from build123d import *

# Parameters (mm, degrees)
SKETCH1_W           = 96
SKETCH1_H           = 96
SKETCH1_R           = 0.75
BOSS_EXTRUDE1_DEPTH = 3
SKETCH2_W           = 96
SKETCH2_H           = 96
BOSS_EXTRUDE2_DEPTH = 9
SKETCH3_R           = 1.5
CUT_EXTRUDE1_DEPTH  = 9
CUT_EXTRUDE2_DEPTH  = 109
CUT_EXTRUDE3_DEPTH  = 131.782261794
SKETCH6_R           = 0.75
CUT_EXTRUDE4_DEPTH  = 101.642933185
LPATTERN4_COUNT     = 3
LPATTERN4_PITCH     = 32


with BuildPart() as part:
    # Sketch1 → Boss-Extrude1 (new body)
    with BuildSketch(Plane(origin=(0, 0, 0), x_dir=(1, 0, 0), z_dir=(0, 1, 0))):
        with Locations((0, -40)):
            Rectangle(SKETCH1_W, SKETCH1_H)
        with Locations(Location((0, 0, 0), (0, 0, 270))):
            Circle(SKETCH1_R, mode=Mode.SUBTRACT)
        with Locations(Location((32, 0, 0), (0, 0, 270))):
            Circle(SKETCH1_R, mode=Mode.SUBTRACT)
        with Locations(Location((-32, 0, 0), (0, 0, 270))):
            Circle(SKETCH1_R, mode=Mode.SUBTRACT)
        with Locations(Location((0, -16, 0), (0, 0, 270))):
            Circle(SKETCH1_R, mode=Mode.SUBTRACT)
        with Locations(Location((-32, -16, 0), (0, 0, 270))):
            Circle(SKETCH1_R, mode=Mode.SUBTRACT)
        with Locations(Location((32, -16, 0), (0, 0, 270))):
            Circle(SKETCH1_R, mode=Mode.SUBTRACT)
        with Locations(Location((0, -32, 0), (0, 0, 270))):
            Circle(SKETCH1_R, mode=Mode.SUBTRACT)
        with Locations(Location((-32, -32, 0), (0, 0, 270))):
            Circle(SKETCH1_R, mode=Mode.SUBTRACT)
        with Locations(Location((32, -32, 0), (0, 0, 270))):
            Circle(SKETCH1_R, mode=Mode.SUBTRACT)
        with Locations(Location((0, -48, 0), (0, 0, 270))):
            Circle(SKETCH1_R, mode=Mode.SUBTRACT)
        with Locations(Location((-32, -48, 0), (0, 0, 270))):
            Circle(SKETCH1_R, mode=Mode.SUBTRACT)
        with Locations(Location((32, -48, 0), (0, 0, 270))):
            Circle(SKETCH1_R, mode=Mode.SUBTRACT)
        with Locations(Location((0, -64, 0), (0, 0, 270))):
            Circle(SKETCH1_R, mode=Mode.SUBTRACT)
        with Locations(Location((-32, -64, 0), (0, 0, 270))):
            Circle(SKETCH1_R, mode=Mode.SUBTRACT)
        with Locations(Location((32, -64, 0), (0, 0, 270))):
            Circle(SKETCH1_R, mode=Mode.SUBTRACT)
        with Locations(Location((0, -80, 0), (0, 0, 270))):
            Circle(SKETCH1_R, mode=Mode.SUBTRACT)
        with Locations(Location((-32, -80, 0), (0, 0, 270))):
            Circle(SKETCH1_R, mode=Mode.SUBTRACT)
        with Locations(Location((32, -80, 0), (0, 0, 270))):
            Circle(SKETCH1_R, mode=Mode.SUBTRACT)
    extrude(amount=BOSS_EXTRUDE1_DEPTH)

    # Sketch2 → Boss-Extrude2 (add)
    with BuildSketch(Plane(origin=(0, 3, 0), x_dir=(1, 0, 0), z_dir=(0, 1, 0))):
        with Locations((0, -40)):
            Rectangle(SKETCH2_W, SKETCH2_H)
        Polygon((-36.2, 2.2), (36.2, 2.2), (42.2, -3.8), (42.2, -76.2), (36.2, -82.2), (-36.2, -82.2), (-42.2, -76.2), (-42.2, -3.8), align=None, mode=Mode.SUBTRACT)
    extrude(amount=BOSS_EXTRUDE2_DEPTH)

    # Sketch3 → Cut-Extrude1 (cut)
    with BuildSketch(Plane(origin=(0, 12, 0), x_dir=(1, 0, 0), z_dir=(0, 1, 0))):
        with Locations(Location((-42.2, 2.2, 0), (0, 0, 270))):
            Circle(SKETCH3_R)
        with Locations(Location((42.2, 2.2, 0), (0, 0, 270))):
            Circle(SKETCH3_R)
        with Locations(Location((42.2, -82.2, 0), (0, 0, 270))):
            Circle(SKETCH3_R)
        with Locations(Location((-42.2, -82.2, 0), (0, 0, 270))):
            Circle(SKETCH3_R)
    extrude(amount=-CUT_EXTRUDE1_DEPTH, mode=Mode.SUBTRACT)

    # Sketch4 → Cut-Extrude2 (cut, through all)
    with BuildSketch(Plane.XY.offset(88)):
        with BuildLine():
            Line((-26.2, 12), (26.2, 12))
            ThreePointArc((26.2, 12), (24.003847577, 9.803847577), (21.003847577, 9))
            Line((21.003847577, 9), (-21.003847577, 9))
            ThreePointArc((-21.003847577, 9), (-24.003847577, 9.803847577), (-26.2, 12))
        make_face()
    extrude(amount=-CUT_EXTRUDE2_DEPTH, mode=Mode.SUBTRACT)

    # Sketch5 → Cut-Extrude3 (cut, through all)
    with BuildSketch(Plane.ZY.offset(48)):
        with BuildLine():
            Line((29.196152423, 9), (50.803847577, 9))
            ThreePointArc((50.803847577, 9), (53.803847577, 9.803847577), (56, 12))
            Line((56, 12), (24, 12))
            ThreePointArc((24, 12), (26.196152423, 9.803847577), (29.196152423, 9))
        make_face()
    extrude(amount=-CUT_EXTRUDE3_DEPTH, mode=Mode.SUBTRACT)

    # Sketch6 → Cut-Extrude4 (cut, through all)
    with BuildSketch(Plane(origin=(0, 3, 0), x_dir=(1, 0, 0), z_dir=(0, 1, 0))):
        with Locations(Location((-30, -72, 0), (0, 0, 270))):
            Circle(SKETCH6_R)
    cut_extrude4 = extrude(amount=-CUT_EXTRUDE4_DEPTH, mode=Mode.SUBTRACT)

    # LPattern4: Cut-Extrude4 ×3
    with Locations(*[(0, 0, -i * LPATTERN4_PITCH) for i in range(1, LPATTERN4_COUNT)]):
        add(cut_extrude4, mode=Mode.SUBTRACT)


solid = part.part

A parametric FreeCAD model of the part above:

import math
import FreeCAD as App
import Part
import Sketcher

V = App.Vector

doc = App.newDocument("Part")
body = doc.addObject("PartDesign::Body", "Body")

sketch1 = doc.addObject("Sketcher::SketchObject", "Sketch")
body.addObject(sketch1)
sketch1.AttachmentSupport = (doc.XZ_Plane, [""])
sketch1.MapMode = "FlatFace"
sketch1.addGeometry([
    Part.LineSegment(V(-48, -8, 0), V(-48, 88, 0)),
    Part.LineSegment(V(-48, 88, 0), V(48, 88, 0)),
    Part.LineSegment(V(48, 88, 0), V(48, -8, 0)),
    Part.LineSegment(V(48, -8, 0), V(-48, -8, 0)),
    Part.Circle(V(-32, 80, 0), V(0, 0, 1), 0.8),
    Part.Circle(V(-32, 64, 0), V(0, 0, 1), 0.8),
    Part.Circle(V(-32, 48, 0), V(0, 0, 1), 0.8),
    Part.Circle(V(0, 80, 0), V(0, 0, 1), 0.8),
    Part.Circle(V(0, 64, 0), V(0, 0, 1), 0.8),
    Part.Circle(V(32, 80, 0), V(0, 0, 1), 0.8),
    Part.Circle(V(32, 64, 0), V(0, 0, 1), 0.8),
    Part.Circle(V(0, 48, 0), V(0, 0, 1), 0.8),
    Part.Circle(V(32, 48, 0), V(0, 0, 1), 0.8),
    Part.Circle(V(-32, 32, 0), V(0, 0, 1), 0.8),
    Part.Circle(V(-32, 16, 0), V(0, 0, 1), 0.8),
    Part.Circle(V(-32, 0, 0), V(0, 0, 1), 0.8),
    Part.Circle(V(0, 32, 0), V(0, 0, 1), 0.8),
    Part.Circle(V(32, 32, 0), V(0, 0, 1), 0.8),
    Part.Circle(V(0, 16, 0), V(0, 0, 1), 0.8),
    Part.Circle(V(0, 0, 0), V(0, 0, 1), 0.8),
    Part.Circle(V(32, 16, 0), V(0, 0, 1), 0.8),
    Part.Circle(V(32, 0, 0), V(0, 0, 1), 0.8),
], False)
sketch1.addConstraint([
    Sketcher.Constraint("Coincident", 0, 2, 1, 1),
    Sketcher.Constraint("Coincident", 1, 2, 2, 1),
    Sketcher.Constraint("Coincident", 2, 2, 3, 1),
    Sketcher.Constraint("Coincident", 3, 2, 0, 1),
    Sketcher.Constraint("Vertical", 0),
    Sketcher.Constraint("Horizontal", 1),
    Sketcher.Constraint("Vertical", 2),
    Sketcher.Constraint("Horizontal", 3),
    Sketcher.Constraint("Coincident", 19, 3, -1, 1),
    Sketcher.Constraint("Equal", 4, 5),
    Sketcher.Constraint("Equal", 5, 6),
    Sketcher.Constraint("Equal", 6, 7),
    Sketcher.Constraint("Equal", 7, 8),
    Sketcher.Constraint("Equal", 8, 9),
    Sketcher.Constraint("Equal", 9, 10),
    Sketcher.Constraint("Equal", 10, 11),
    Sketcher.Constraint("Equal", 11, 12),
    Sketcher.Constraint("Equal", 12, 13),
    Sketcher.Constraint("Equal", 13, 14),
    Sketcher.Constraint("Equal", 14, 15),
    Sketcher.Constraint("Equal", 15, 16),
    Sketcher.Constraint("Equal", 16, 17),
    Sketcher.Constraint("Equal", 17, 18),
    Sketcher.Constraint("Equal", 18, 19),
    Sketcher.Constraint("Equal", 19, 20),
    Sketcher.Constraint("Equal", 20, 21),
    Sketcher.Constraint("Symmetric", 15, 3, 21, 3, -1, 1),
    Sketcher.Constraint("Symmetric", 4, 3, 9, 3, -2),
    Sketcher.Constraint("Symmetric", 5, 3, 10, 3, -2),
    Sketcher.Constraint("Symmetric", 6, 3, 12, 3, -2),
    Sketcher.Constraint("Symmetric", 13, 3, 17, 3, -2),
    Sketcher.Constraint("Symmetric", 14, 3, 20, 3, -2),
    Sketcher.Constraint("PointOnObject", 7, 3, -2),
    Sketcher.Constraint("PointOnObject", 8, 3, -2),
    Sketcher.Constraint("PointOnObject", 11, 3, -2),
    Sketcher.Constraint("PointOnObject", 15, 3, -1),
    Sketcher.Constraint("PointOnObject", 16, 3, -2),
    Sketcher.Constraint("PointOnObject", 18, 3, -2),
    Sketcher.Constraint("Horizontal", 4, 3, 7, 3),
    Sketcher.Constraint("Horizontal", 5, 3, 8, 3),
    Sketcher.Constraint("Horizontal", 6, 3, 11, 3),
    Sketcher.Constraint("Horizontal", 13, 3, 16, 3),
    Sketcher.Constraint("Horizontal", 14, 3, 18, 3),
    Sketcher.Constraint("Vertical", 4, 3, 5, 3),
    Sketcher.Constraint("Vertical", 5, 3, 6, 3),
    Sketcher.Constraint("Vertical", 6, 3, 13, 3),
    Sketcher.Constraint("Vertical", 13, 3, 14, 3),
    Sketcher.Constraint("Vertical", 14, 3, 15, 3),
    Sketcher.Constraint("Equal", 3, 0),
    Sketcher.Constraint("Diameter", 4, 1.5),
    Sketcher.Constraint("DistanceX", 1, 1, 1, 2, 96.0),
    Sketcher.Constraint("DistanceX", 4, 3, -1, 1, 32.0),
    Sketcher.Constraint("DistanceY", -1, 1, 4, 3, 80.0),
    Sketcher.Constraint("DistanceY", -1, 1, 5, 3, 64.0),
    Sketcher.Constraint("DistanceY", -1, 1, 6, 3, 48.0),
    Sketcher.Constraint("DistanceY", -1, 1, 13, 3, 32.0),
    Sketcher.Constraint("DistanceY", -1, 1, 14, 3, 16.0),
    Sketcher.Constraint("DistanceX", 0, 2, -1, 1, 48.0),
    Sketcher.Constraint("DistanceY", -1, 1, 0, 2, 88.0),
])
pad1 = doc.addObject("PartDesign::Pad", "Pad")
body.addObject(pad1)
pad1.Profile = sketch1
pad1.Length = 3
pad1.Reversed = True

sketch2 = doc.addObject("Sketcher::SketchObject", "Sketch001")
body.addObject(sketch2)
sketch2.AttachmentSupport = (doc.XZ_Plane, [""])
sketch2.MapMode = "FlatFace"
sketch2.AttachmentOffset = App.Placement(V(0, 0, -3), App.Rotation())
sketch2.addGeometry([
    Part.LineSegment(V(-48, -8, 0), V(-48, 88, 0)),
    Part.LineSegment(V(-48, 88, 0), V(48, 88, 0)),
    Part.LineSegment(V(48, 88, 0), V(48, -8, 0)),
    Part.LineSegment(V(48, -8, 0), V(-48, -8, 0)),
    Part.LineSegment(V(-42, 4, 0), V(-36, -2, 0)),
    Part.LineSegment(V(-36, -2, 0), V(36, -2, 0)),
    Part.LineSegment(V(36, -2, 0), V(42, 4, 0)),
    Part.LineSegment(V(42, 4, 0), V(42, 76, 0)),
    Part.LineSegment(V(42, 76, 0), V(36, 82, 0)),
    Part.LineSegment(V(36, 82, 0), V(-36, 82, 0)),
    Part.LineSegment(V(-36, 82, 0), V(-42, 76, 0)),
    Part.LineSegment(V(-42, 76, 0), V(-42, 4, 0)),
], False)
sketch2.addConstraint([
    Sketcher.Constraint("Coincident", 0, 2, 1, 1),
    Sketcher.Constraint("Coincident", 1, 2, 2, 1),
    Sketcher.Constraint("Coincident", 2, 2, 3, 1),
    Sketcher.Constraint("Coincident", 3, 2, 0, 1),
    Sketcher.Constraint("Coincident", 4, 2, 5, 1),
    Sketcher.Constraint("Coincident", 5, 2, 6, 1),
    Sketcher.Constraint("Coincident", 6, 2, 7, 1),
    Sketcher.Constraint("Coincident", 7, 2, 8, 1),
    Sketcher.Constraint("Coincident", 8, 2, 9, 1),
    Sketcher.Constraint("Coincident", 9, 2, 10, 1),
    Sketcher.Constraint("Coincident", 10, 2, 11, 1),
    Sketcher.Constraint("Coincident", 11, 2, 4, 1),
    Sketcher.Constraint("Vertical", 0),
    Sketcher.Constraint("Horizontal", 1),
    Sketcher.Constraint("Vertical", 2),
    Sketcher.Constraint("Horizontal", 3),
    Sketcher.Constraint("Horizontal", 5),
    Sketcher.Constraint("Vertical", 7),
    Sketcher.Constraint("Horizontal", 9),
    Sketcher.Constraint("Vertical", 11),
    Sketcher.Constraint("Symmetric", 7, 2, 10, 2, -2),
    Sketcher.Constraint("Perpendicular", 4, 6),
    Sketcher.Constraint("Perpendicular", 6, 8),
    Sketcher.Constraint("Perpendicular", 8, 10),
    Sketcher.Constraint("Horizontal", 6, 2, 11, 2),
    Sketcher.Constraint("Vertical", 5, 2, 8, 2),
    Sketcher.Constraint("Vertical", 4, 2, 9, 2),
    Sketcher.Constraint("Equal", 3, 0),
    Sketcher.Constraint("Equal", 9, 7),
    Sketcher.Constraint("DistanceX", 1, 1, 1, 2, 96.0),
    Sketcher.Constraint("DistanceX", 5, 1, 5, 2, 72.4),
    Sketcher.Constraint("DistanceX", 0, 2, -1, 1, 48.0),
    Sketcher.Constraint("DistanceY", -1, 1, 0, 2, 88.0),
    Sketcher.Constraint("DistanceX", 5, 2, 6, 2, 6.0),
    Sketcher.Constraint("DistanceY", 4, 2, -1, 1, 2.2),
])
pad2 = doc.addObject("PartDesign::Pad", "Pad001")
body.addObject(pad2)
pad2.Profile = sketch2
pad2.Length = 9
pad2.Reversed = True

sketch3 = doc.addObject("Sketcher::SketchObject", "Sketch002")
body.addObject(sketch3)
sketch3.AttachmentSupport = (doc.XZ_Plane, [""])
sketch3.MapMode = "FlatFace"
sketch3.AttachmentOffset = App.Placement(V(0, 0, -12), App.Rotation())
sketch3.addGeometry([
    Part.Circle(V(-42.2, -2.2, 0), V(0, 0, 1), 1.5),
    Part.Circle(V(42.2, -2.2, 0), V(0, 0, 1), 1.5),
    Part.Circle(V(42.2, 82.2, 0), V(0, 0, 1), 1.5),
    Part.Circle(V(-42.2, 82.2, 0), V(0, 0, 1), 1.5),
], False)
sketch3.addConstraint([
    Sketcher.Constraint("Equal", 0, 1),
    Sketcher.Constraint("Equal", 1, 2),
    Sketcher.Constraint("Equal", 2, 3),
    Sketcher.Constraint("Symmetric", 0, 3, 1, 3, -2),
    Sketcher.Constraint("Symmetric", 2, 3, 3, 3, -2),
    Sketcher.Constraint("Vertical", 1, 3, 2, 3),
    Sketcher.Constraint("Diameter", 0, 3.0),
    Sketcher.Constraint("DistanceX", 0, 3, -1, 1, 42.2),
    Sketcher.Constraint("DistanceY", 0, 3, -1, 1, 2.2),
    Sketcher.Constraint("DistanceY", -1, 1, 2, 3, 82.2),
])
pocket1 = doc.addObject("PartDesign::Pocket", "Pocket")
body.addObject(pocket1)
pocket1.Profile = sketch3
pocket1.Length = 9
pocket1.Reversed = True

sketch4 = doc.addObject("Sketcher::SketchObject", "Sketch003")
body.addObject(sketch4)
sketch4.AttachmentSupport = (doc.XY_Plane, [""])
sketch4.MapMode = "FlatFace"
sketch4.AttachmentOffset = App.Placement(V(0, 0, 88), App.Rotation())
sketch4.addGeometry([
    Part.LineSegment(V(26, 12, 0), V(-26, 12, 0)),
    Part.ArcOfCircle(Part.Circle(V(-21, 15, 0), V(0, 0, 1), 6), math.radians(-150), math.radians(-90)),
    Part.LineSegment(V(-21, 9, 0), V(21, 9, 0)),
    Part.ArcOfCircle(Part.Circle(V(21, 15, 0), V(0, 0, 1), 6), math.radians(-90), math.radians(-30)),
], False)
sketch4.addConstraint([
    Sketcher.Constraint("Coincident", 0, 2, 1, 1),
    Sketcher.Constraint("Tangent", 1, 2, 2, 1),
    Sketcher.Constraint("Tangent", 2, 2, 3, 1),
    Sketcher.Constraint("Coincident", 3, 2, 0, 1),
    Sketcher.Constraint("Horizontal", 0),
    Sketcher.Constraint("Horizontal", 2),
    Sketcher.Constraint("Equal", 1, 3),
    Sketcher.Constraint("Radius", 1, 6.0),
    Sketcher.Constraint("DistanceX", 0, 2, 0, 1, 52.4),
    Sketcher.Constraint("DistanceY", -1, 1, 1, 3, 15.0),
    Sketcher.Constraint("DistanceY", -1, 1, 0, 2, 12.0),
    Sketcher.Constraint("DistanceX", 0, 2, -1, 1, 26.2),
])
pocket2 = doc.addObject("PartDesign::Pocket", "Pocket001")
body.addObject(pocket2)
pocket2.Profile = sketch4
pocket2.Type = "ThroughAll"

sketch5 = doc.addObject("Sketcher::SketchObject", "Sketch004")
body.addObject(sketch5)
sketch5.AttachmentSupport = (doc.YZ_Plane, [""])
sketch5.MapMode = "FlatFace"
sketch5.AttachmentOffset = App.Placement(V(0, 0, -48), App.Rotation())
sketch5.addGeometry([
    Part.LineSegment(V(9, 29, 0), V(9, 51, 0)),
    Part.ArcOfCircle(Part.Circle(V(15, 51, 0), V(0, 0, 1), 6), math.radians(120), math.radians(180)),
    Part.LineSegment(V(12, 56, 0), V(12, 24, 0)),
    Part.ArcOfCircle(Part.Circle(V(15, 29, 0), V(0, 0, 1), 6), math.radians(180), math.radians(240)),
], False)
sketch5.addConstraint([
    Sketcher.Constraint("Tangent", 0, 2, 1, 2),
    Sketcher.Constraint("Coincident", 1, 1, 2, 1),
    Sketcher.Constraint("Coincident", 2, 2, 3, 2),
    Sketcher.Constraint("Tangent", 3, 1, 0, 1),
    Sketcher.Constraint("Vertical", 0),
    Sketcher.Constraint("Vertical", 2),
    Sketcher.Constraint("Equal", 1, 3),
    Sketcher.Constraint("Radius", 1, 6.0),
    Sketcher.Constraint("DistanceY", 2, 2, 2, 1, 32.0),
    Sketcher.Constraint("DistanceX", -1, 1, 1, 3, 15.0),
    Sketcher.Constraint("DistanceX", -1, 1, 1, 1, 12.0),
    Sketcher.Constraint("DistanceY", -1, 1, 1, 1, 56.0),
])
pocket3 = doc.addObject("PartDesign::Pocket", "Pocket002")
body.addObject(pocket3)
pocket3.Profile = sketch5
pocket3.Type = "ThroughAll"
pocket3.Reversed = True

sketch6 = doc.addObject("Sketcher::SketchObject", "Sketch005")
body.addObject(sketch6)
sketch6.AttachmentSupport = (doc.XZ_Plane, [""])
sketch6.MapMode = "FlatFace"
sketch6.AttachmentOffset = App.Placement(V(0, 0, -3), App.Rotation())
sketch6.addGeometry(Part.Circle(V(-30, 72, 0), V(0, 0, 1), 0.8), False)
sketch6.addConstraint([
    Sketcher.Constraint("Diameter", 0, 1.5),
    Sketcher.Constraint("DistanceX", 0, 3, -1, 1, 30.0),
    Sketcher.Constraint("DistanceY", -1, 1, 0, 3, 72.0),
])
pocket4 = doc.addObject("PartDesign::Pocket", "Pocket003")
body.addObject(pocket4)
pocket4.Profile = sketch6
pocket4.Type = "ThroughAll"
pocket4.Reversed = True
doc.recompute()

linearpattern = doc.addObject("PartDesign::LinearPattern", "LinearPattern")
body.addObject(linearpattern)
linearpattern.Originals = [pocket4]
linearpattern.Direction = (doc.Z_Axis, [""])
linearpattern.Mode = "offset"
linearpattern.Offset = 32
linearpattern.Occurrences = 3
linearpattern.Reversed = True
body.Tip = linearpattern

doc.recompute()
